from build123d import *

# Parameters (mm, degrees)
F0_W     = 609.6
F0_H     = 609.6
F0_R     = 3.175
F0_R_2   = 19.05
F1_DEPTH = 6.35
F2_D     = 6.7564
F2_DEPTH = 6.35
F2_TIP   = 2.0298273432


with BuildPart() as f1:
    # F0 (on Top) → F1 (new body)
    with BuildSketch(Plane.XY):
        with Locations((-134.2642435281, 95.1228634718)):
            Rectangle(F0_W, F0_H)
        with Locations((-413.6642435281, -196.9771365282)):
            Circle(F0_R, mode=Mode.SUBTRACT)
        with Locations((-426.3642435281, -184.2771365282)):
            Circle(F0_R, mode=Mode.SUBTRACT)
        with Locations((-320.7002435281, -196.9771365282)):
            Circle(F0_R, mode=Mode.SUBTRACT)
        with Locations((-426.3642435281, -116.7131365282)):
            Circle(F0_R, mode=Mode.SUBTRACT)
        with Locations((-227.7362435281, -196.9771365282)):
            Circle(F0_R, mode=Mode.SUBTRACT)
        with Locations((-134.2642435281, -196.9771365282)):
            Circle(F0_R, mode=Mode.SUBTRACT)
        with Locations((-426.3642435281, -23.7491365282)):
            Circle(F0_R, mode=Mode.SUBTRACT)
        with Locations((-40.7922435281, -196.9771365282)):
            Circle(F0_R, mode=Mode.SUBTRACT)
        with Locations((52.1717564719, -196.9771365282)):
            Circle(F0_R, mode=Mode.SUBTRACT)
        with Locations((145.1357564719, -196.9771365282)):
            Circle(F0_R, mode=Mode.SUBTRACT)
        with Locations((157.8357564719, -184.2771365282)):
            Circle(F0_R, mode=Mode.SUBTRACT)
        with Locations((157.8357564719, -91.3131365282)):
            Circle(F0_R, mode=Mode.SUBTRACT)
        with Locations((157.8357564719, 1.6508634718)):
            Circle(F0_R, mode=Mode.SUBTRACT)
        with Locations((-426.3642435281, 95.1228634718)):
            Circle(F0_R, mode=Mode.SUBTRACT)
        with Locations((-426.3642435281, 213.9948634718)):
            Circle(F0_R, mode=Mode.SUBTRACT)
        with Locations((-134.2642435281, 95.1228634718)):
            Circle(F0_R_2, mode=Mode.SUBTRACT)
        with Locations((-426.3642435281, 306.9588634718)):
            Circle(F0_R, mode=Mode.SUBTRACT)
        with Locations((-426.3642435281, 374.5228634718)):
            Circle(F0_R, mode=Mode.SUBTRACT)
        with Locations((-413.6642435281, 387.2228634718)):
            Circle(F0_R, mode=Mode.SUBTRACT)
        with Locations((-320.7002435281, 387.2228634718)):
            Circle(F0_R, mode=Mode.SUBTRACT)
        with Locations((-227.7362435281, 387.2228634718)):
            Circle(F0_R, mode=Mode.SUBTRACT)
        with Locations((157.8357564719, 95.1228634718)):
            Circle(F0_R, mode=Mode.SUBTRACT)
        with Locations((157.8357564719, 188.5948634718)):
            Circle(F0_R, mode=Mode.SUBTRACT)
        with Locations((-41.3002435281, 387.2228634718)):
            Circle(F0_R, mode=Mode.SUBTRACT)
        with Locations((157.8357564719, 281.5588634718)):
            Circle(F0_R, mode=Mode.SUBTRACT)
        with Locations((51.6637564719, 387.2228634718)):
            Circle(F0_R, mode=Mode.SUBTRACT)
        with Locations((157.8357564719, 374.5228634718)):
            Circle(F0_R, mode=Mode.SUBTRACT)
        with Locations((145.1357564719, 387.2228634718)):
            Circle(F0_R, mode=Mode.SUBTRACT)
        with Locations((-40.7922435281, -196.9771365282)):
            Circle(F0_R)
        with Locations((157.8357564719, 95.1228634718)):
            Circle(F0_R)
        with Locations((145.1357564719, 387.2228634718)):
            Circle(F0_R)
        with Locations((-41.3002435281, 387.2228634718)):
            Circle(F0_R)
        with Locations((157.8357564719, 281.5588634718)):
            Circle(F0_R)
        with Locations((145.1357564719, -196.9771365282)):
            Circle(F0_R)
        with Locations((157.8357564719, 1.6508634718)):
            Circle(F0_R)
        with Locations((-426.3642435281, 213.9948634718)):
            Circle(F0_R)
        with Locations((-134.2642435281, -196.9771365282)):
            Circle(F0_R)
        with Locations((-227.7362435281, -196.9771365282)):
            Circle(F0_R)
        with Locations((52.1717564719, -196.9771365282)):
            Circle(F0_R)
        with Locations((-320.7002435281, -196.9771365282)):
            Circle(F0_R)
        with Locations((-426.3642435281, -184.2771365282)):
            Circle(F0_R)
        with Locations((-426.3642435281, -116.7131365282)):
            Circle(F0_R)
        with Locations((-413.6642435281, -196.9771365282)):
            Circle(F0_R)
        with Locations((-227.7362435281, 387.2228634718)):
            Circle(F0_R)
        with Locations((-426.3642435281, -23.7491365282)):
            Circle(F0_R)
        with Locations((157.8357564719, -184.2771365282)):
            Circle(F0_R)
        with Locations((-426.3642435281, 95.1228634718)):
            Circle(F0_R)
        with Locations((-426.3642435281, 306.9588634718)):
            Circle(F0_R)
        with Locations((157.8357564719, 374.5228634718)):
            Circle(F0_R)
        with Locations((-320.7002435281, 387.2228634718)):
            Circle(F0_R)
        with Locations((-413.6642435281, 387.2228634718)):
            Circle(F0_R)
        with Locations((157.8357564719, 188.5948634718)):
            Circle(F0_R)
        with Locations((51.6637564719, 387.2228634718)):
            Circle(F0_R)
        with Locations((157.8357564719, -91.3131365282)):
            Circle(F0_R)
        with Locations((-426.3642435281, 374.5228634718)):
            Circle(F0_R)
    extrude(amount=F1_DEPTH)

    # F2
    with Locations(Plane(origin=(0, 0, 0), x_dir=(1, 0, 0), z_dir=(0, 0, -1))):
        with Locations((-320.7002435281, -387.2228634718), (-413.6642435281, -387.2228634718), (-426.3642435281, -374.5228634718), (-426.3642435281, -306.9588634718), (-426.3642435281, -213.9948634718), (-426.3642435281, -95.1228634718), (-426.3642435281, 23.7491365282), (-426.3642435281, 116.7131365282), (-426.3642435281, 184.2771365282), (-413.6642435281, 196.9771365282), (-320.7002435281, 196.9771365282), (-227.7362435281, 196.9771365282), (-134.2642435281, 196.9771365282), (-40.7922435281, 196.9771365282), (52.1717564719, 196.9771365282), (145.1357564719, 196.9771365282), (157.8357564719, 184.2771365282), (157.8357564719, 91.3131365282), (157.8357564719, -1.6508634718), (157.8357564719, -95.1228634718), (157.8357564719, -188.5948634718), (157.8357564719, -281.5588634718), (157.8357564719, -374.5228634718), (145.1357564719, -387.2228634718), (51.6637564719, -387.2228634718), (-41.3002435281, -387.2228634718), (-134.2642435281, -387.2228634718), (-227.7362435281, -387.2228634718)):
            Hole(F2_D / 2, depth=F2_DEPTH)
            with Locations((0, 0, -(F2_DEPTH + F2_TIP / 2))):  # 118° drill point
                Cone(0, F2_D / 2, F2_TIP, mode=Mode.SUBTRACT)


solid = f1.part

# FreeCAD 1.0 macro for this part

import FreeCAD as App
import Part
import Sketcher
from FreeCAD import Vector
Q = App.Units.Quantity


def add_polygon(sketch, points):
    """Adds a closed chain of lines whose ends are joined by coincident constraints."""
    first, n = sketch.GeometryCount, len(points)
    for a, b in zip(points, points[1:] + points[:1]):
        sketch.addGeometry(Part.LineSegment(App.Vector(*a, 0), App.Vector(*b, 0)), False)
    for i in range(n):
        sketch.addConstraint(Sketcher.Constraint("Coincident", first + i, 2, first + (i + 1) % n, 1))

doc = App.newDocument("Part")
body = doc.addObject("PartDesign::Body", "Body")

# Sketch on XY plane
sketch1 = body.newObject("Sketcher::SketchObject", "Sketch")
sketch1.AttachmentSupport = (doc.getObject("XY_Plane"), [""])
sketch1.MapMode = "FlatFace"
add_polygon(sketch1, [(-439, 400), (-439, -210), (171, -210), (171, 400)])  # lines 0-3
sketch1.addGeometry(Part.Circle(Vector(-134, 95, 0), Vector(0, 0, 1), 19), False)  # 4
sketch1.addConstraint(Sketcher.Constraint("Vertical", 0))
sketch1.addConstraint(Sketcher.Constraint("Horizontal", 1))
sketch1.addConstraint(Sketcher.Constraint("Vertical", 2))
sketch1.addConstraint(Sketcher.Constraint("Horizontal", 3))
sketch1.addConstraint(Sketcher.Constraint("Equal", 3, 0))
sketch1.addConstraint(Sketcher.Constraint("Diameter", 4, Q("1.5 in")))
sketch1.addConstraint(Sketcher.Constraint("DistanceX", 1, 1, 1, 2, Q("24 in")))
sketch1.addConstraint(Sketcher.Constraint("DistanceX", 0, 2, 4, 3, Q("12 in")))
sketch1.addConstraint(Sketcher.Constraint("DistanceY", 0, 2, 4, 3, Q("12 in")))
sketch1.addConstraint(Sketcher.Constraint("DistanceX", 4, 3, -1, 1, 134.264244))
sketch1.addConstraint(Sketcher.Constraint("DistanceY", -1, 1, 4, 3, 95.122863))
pad1 = body.newObject("PartDesign::Pad", "Pad")
pad1.Profile = sketch1
pad1.Length = Q("0.25 in")

# Sketch on XY plane
sketch2 = body.newObject("Sketcher::SketchObject", "Sketch001")
sketch2.AttachmentSupport = (doc.getObject("XY_Plane"), [""])
sketch2.MapMode = "FlatFace"
sketch2.addGeometry(Part.Circle(Vector(-320.7, 387.2, 0), Vector(0, 0, 1), 3.4), False)
sketch2.addGeometry(Part.Circle(Vector(-413.7, 387.2, 0), Vector(0, 0, 1), 3.4), False)
sketch2.addGeometry(Part.Circle(Vector(-426.4, 374.5, 0), Vector(0, 0, 1), 3.4), False)
sketch2.addGeometry(Part.Circle(Vector(-426.4, 307, 0), Vector(0, 0, 1), 3.4), False)
sketch2.addGeometry(Part.Circle(Vector(-426.4, 214, 0), Vector(0, 0, 1), 3.4), False)
sketch2.addGeometry(Part.Circle(Vector(-426.4, 95.1, 0), Vector(0, 0, 1), 3.4), False)
sketch2.addGeometry(Part.Circle(Vector(-426.4, -23.7, 0), Vector(0, 0, 1), 3.4), False)
sketch2.addGeometry(Part.Circle(Vector(-426.4, -116.7, 0), Vector(0, 0, 1), 3.4), False)
sketch2.addGeometry(Part.Circle(Vector(-426.4, -184.3, 0), Vector(0, 0, 1), 3.4), False)
sketch2.addGeometry(Part.Circle(Vector(-413.7, -197, 0), Vector(0, 0, 1), 3.4), False)
sketch2.addGeometry(Part.Circle(Vector(-320.7, -197, 0), Vector(0, 0, 1), 3.4), False)
sketch2.addGeometry(Part.Circle(Vector(-227.7, -197, 0), Vector(0, 0, 1), 3.4), False)
sketch2.addGeometry(Part.Circle(Vector(-134.3, -197, 0), Vector(0, 0, 1), 3.4), False)
sketch2.addGeometry(Part.Circle(Vector(-40.8, -197, 0), Vector(0, 0, 1), 3.4), False)
sketch2.addGeometry(Part.Circle(Vector(52.2, -197, 0), Vector(0, 0, 1), 3.4), False)
sketch2.addGeometry(Part.Circle(Vector(145.1, -197, 0), Vector(0, 0, 1), 3.4), False)
sketch2.addGeometry(Part.Circle(Vector(157.8, -184.3, 0), Vector(0, 0, 1), 3.4), False)
sketch2.addGeometry(Part.Circle(Vector(157.8, -91.3, 0), Vector(0, 0, 1), 3.4), False)
sketch2.addGeometry(Part.Circle(Vector(157.8, 1.7, 0), Vector(0, 0, 1), 3.4), False)
sketch2.addGeometry(Part.Circle(Vector(157.8, 95.1, 0), Vector(0, 0, 1), 3.4), False)
sketch2.addGeometry(Part.Circle(Vector(157.8, 188.6, 0), Vector(0, 0, 1), 3.4), False)
sketch2.addGeometry(Part.Circle(Vector(157.8, 281.6, 0), Vector(0, 0, 1), 3.4), False)
sketch2.addGeometry(Part.Circle(Vector(157.8, 374.5, 0), Vector(0, 0, 1), 3.4), False)
sketch2.addGeometry(Part.Circle(Vector(145.1, 387.2, 0), Vector(0, 0, 1), 3.4), False)
sketch2.addGeometry(Part.Circle(Vector(51.7, 387.2, 0), Vector(0, 0, 1), 3.4), False)
sketch2.addGeometry(Part.Circle(Vector(-41.3, 387.2, 0), Vector(0, 0, 1), 3.4), False)
sketch2.addGeometry(Part.Circle(Vector(-134.3, 387.2, 0), Vector(0, 0, 1), 3.4), False)
sketch2.addGeometry(Part.Circle(Vector(-227.7, 387.2, 0), Vector(0, 0, 1), 3.4), False)
sketch2.addConstraint(Sketcher.Constraint("Equal", 0, 1))
sketch2.addConstraint(Sketcher.Constraint("Equal", 1, 2))
sketch2.addConstraint(Sketcher.Constraint("Equal", 2, 3))
sketch2.addConstraint(Sketcher.Constraint("Equal", 3, 4))
sketch2.addConstraint(Sketcher.Constraint("Equal", 4, 5))
sketch2.addConstraint(Sketcher.Constraint("Equal", 5, 6))
sketch2.addConstraint(Sketcher.Constraint("Equal", 6, 7))
sketch2.addConstraint(Sketcher.Constraint("Equal", 7, 8))
sketch2.addConstraint(Sketcher.Constraint("Equal", 8, 9))
sketch2.addConstraint(Sketcher.Constraint("Equal", 9, 10))
sketch2.addConstraint(Sketcher.Constraint("Equal", 10, 11))
sketch2.addConstraint(Sketcher.Constraint("Equal", 11, 12))
sketch2.addConstraint(Sketcher.Constraint("Equal", 12, 13))
sketch2.addConstraint(Sketcher.Constraint("Equal", 13, 14))
sketch2.addConstraint(Sketcher.Constraint("Equal", 14, 15))
sketch2.addConstraint(Sketcher.Constraint("Equal", 15, 16))
sketch2.addConstraint(Sketcher.Constraint("Equal", 16, 17))
sketch2.addConstraint(Sketcher.Constraint("Equal", 17, 18))
sketch2.addConstraint(Sketcher.Constraint("Equal", 18, 19))
sketch2.addConstraint(Sketcher.Constraint("Equal", 19, 20))
sketch2.addConstraint(Sketcher.Constraint("Equal", 20, 21))
sketch2.addConstraint(Sketcher.Constraint("Equal", 21, 22))
sketch2.addConstraint(Sketcher.Constraint("Equal", 22, 23))
sketch2.addConstraint(Sketcher.Constraint("Equal", 23, 24))
sketch2.addConstraint(Sketcher.Constraint("Equal", 24, 25))
sketch2.addConstraint(Sketcher.Constraint("Equal", 25, 26))
sketch2.addConstraint(Sketcher.Constraint("Equal", 26, 27))
sketch2.addConstraint(Sketcher.Constraint("Horizontal", 0, 3, 1, 3))
sketch2.addConstraint(Sketcher.Constraint("Horizontal", 9, 3, 10, 3))
sketch2.addConstraint(Sketcher.Constraint("Horizontal", 10, 3, 11, 3))
sketch2.addConstraint(Sketcher.Constraint("Horizontal", 11, 3, 12, 3))
sketch2.addConstraint(Sketcher.Constraint("Horizontal", 12, 3, 13, 3))
sketch2.addConstraint(Sketcher.Constraint("Horizontal", 13, 3, 14, 3))
sketch2.addConstraint(Sketcher.Constraint("Horizontal", 14, 3, 15, 3))
sketch2.addConstraint(Sketcher.Constraint("Horizontal", 8, 3, 16, 3))
sketch2.addConstraint(Sketcher.Constraint("Horizontal", 5, 3, 19, 3))
sketch2.addConstraint(Sketcher.Constraint("Horizontal", 2, 3, 22, 3))
sketch2.addConstraint(Sketcher.Constraint("Horizontal", 1, 3, 23, 3))
sketch2.addConstraint(Sketcher.Constraint("Horizontal", 23, 3, 24, 3))
sketch2.addConstraint(Sketcher.Constraint("Horizontal", 24, 3, 25, 3))
sketch2.addConstraint(Sketcher.Constraint("Horizontal", 25, 3, 26, 3))
sketch2.addConstraint(Sketcher.Constraint("Horizontal", 26, 3, 27, 3))
sketch2.addConstraint(Sketcher.Constraint("Vertical", 2, 3, 3, 3))
sketch2.addConstraint(Sketcher.Constraint("Vertical", 3, 3, 4, 3))
sketch2.addConstraint(Sketcher.Constraint("Vertical", 4, 3, 5, 3))
sketch2.addConstraint(Sketcher.Constraint("Vertical", 5, 3, 6, 3))
sketch2.addConstraint(Sketcher.Constraint("Vertical", 6, 3, 7, 3))
sketch2.addConstraint(Sketcher.Constraint("Vertical", 7, 3, 8, 3))
sketch2.addConstraint(Sketcher.Constraint("Vertical", 1, 3, 9, 3))
sketch2.addConstraint(Sketcher.Constraint("Vertical", 0, 3, 10, 3))
sketch2.addConstraint(Sketcher.Constraint("Vertical", 16, 3, 17, 3))
sketch2.addConstraint(Sketcher.Constraint("Vertical", 17, 3, 18, 3))
sketch2.addConstraint(Sketcher.Constraint("Vertical", 18, 3, 19, 3))
sketch2.addConstraint(Sketcher.Constraint("Vertical", 19, 3, 20, 3))
sketch2.addConstraint(Sketcher.Constraint("Vertical", 20, 3, 21, 3))
sketch2.addConstraint(Sketcher.Constraint("Vertical", 21, 3, 22, 3))
sketch2.addConstraint(Sketcher.Constraint("Vertical", 15, 3, 23, 3))
sketch2.addConstraint(Sketcher.Constraint("Vertical", 12, 3, 26, 3))
sketch2.addConstraint(Sketcher.Constraint("Vertical", 11, 3, 27, 3))
sketch2.addConstraint(Sketcher.Constraint("Diameter", 0, Q("0.266 in")))
sketch2.addConstraint(Sketcher.Constraint("DistanceY", 5, 3, 2, 3, Q("11 in")))
sketch2.addConstraint(Sketcher.Constraint("DistanceY", 8, 3, 5, 3, Q("11 in")))
sketch2.addConstraint(Sketcher.Constraint("DistanceX", 9, 3, 12, 3, Q("11 in")))
sketch2.addConstraint(Sketcher.Constraint("DistanceX", 12, 3, 15, 3, Q("11 in")))
sketch2.addConstraint(Sketcher.Constraint("DistanceX", 0, 3, 25, 3, Q("11 in")))
sketch2.addConstraint(Sketcher.Constraint("DistanceX", 2, 3, 1, 3, Q("0.5 in")))
sketch2.addConstraint(Sketcher.Constraint("DistanceY", 2, 3, 1, 3, Q("0.5 in")))
sketch2.addConstraint(Sketcher.Constraint("DistanceY", 9, 3, 8, 3, Q("0.5 in")))
sketch2.addConstraint(Sketcher.Constraint("DistanceX", 15, 3, 16, 3, Q("0.5 in")))
sketch2.addConstraint(Sketcher.Constraint("DistanceX", 1, 3, 0, 3, Q("3.66 in")))
sketch2.addConstraint(Sketcher.Constraint("DistanceY", 3, 3, 2, 3, Q("2.66 in")))
sketch2.addConstraint(Sketcher.Constraint("DistanceY", 4, 3, 3, 3, Q("3.66 in")))
sketch2.addConstraint(Sketcher.Constraint("DistanceY", 6, 3, 5, 3, Q("4.68 in")))
sketch2.addConstraint(Sketcher.Constraint("DistanceY", 7, 3, 6, 3, Q("3.66 in")))
sketch2.addConstraint(Sketcher.Constraint("DistanceX", 10, 3, 11, 3, Q("3.66 in")))
sketch2.addConstraint(Sketcher.Constraint("DistanceX", 12, 3, 13, 3, Q("3.68 in")))
sketch2.addConstraint(Sketcher.Constraint("DistanceX", 13, 3, 14, 3, Q("3.66 in")))
sketch2.addConstraint(Sketcher.Constraint("DistanceY", 16, 3, 17, 3, Q("3.66 in")))
sketch2.addConstraint(Sketcher.Constraint("DistanceY", 17, 3, 18, 3, Q("3.66 in")))
sketch2.addConstraint(Sketcher.Constraint("DistanceY", 19, 3, 20, 3, Q("3.68 in")))
sketch2.addConstraint(Sketcher.Constraint("DistanceY", 20, 3, 21, 3, Q("3.66 in")))
sketch2.addConstraint(Sketcher.Constraint("DistanceX", 24, 3, 23, 3, Q("3.68 in")))
sketch2.addConstraint(Sketcher.Constraint("DistanceX", 0, 3, -1, 1, 320.700244))
sketch2.addConstraint(Sketcher.Constraint("DistanceY", -1, 1, 0, 3, 387.222863))
doc.recompute()
hole = body.newObject("PartDesign::Hole", "Hole")
hole.Profile = sketch2
hole.ThreadType = "None"
hole.Diameter = Q("0.266 in")
hole.DepthType = "Dimension"
hole.Depth = Q("0.25 in")
hole.DrillPoint = "Angled"
hole.DrillPointAngle = 118
hole.Reversed = True

doc.recompute()
